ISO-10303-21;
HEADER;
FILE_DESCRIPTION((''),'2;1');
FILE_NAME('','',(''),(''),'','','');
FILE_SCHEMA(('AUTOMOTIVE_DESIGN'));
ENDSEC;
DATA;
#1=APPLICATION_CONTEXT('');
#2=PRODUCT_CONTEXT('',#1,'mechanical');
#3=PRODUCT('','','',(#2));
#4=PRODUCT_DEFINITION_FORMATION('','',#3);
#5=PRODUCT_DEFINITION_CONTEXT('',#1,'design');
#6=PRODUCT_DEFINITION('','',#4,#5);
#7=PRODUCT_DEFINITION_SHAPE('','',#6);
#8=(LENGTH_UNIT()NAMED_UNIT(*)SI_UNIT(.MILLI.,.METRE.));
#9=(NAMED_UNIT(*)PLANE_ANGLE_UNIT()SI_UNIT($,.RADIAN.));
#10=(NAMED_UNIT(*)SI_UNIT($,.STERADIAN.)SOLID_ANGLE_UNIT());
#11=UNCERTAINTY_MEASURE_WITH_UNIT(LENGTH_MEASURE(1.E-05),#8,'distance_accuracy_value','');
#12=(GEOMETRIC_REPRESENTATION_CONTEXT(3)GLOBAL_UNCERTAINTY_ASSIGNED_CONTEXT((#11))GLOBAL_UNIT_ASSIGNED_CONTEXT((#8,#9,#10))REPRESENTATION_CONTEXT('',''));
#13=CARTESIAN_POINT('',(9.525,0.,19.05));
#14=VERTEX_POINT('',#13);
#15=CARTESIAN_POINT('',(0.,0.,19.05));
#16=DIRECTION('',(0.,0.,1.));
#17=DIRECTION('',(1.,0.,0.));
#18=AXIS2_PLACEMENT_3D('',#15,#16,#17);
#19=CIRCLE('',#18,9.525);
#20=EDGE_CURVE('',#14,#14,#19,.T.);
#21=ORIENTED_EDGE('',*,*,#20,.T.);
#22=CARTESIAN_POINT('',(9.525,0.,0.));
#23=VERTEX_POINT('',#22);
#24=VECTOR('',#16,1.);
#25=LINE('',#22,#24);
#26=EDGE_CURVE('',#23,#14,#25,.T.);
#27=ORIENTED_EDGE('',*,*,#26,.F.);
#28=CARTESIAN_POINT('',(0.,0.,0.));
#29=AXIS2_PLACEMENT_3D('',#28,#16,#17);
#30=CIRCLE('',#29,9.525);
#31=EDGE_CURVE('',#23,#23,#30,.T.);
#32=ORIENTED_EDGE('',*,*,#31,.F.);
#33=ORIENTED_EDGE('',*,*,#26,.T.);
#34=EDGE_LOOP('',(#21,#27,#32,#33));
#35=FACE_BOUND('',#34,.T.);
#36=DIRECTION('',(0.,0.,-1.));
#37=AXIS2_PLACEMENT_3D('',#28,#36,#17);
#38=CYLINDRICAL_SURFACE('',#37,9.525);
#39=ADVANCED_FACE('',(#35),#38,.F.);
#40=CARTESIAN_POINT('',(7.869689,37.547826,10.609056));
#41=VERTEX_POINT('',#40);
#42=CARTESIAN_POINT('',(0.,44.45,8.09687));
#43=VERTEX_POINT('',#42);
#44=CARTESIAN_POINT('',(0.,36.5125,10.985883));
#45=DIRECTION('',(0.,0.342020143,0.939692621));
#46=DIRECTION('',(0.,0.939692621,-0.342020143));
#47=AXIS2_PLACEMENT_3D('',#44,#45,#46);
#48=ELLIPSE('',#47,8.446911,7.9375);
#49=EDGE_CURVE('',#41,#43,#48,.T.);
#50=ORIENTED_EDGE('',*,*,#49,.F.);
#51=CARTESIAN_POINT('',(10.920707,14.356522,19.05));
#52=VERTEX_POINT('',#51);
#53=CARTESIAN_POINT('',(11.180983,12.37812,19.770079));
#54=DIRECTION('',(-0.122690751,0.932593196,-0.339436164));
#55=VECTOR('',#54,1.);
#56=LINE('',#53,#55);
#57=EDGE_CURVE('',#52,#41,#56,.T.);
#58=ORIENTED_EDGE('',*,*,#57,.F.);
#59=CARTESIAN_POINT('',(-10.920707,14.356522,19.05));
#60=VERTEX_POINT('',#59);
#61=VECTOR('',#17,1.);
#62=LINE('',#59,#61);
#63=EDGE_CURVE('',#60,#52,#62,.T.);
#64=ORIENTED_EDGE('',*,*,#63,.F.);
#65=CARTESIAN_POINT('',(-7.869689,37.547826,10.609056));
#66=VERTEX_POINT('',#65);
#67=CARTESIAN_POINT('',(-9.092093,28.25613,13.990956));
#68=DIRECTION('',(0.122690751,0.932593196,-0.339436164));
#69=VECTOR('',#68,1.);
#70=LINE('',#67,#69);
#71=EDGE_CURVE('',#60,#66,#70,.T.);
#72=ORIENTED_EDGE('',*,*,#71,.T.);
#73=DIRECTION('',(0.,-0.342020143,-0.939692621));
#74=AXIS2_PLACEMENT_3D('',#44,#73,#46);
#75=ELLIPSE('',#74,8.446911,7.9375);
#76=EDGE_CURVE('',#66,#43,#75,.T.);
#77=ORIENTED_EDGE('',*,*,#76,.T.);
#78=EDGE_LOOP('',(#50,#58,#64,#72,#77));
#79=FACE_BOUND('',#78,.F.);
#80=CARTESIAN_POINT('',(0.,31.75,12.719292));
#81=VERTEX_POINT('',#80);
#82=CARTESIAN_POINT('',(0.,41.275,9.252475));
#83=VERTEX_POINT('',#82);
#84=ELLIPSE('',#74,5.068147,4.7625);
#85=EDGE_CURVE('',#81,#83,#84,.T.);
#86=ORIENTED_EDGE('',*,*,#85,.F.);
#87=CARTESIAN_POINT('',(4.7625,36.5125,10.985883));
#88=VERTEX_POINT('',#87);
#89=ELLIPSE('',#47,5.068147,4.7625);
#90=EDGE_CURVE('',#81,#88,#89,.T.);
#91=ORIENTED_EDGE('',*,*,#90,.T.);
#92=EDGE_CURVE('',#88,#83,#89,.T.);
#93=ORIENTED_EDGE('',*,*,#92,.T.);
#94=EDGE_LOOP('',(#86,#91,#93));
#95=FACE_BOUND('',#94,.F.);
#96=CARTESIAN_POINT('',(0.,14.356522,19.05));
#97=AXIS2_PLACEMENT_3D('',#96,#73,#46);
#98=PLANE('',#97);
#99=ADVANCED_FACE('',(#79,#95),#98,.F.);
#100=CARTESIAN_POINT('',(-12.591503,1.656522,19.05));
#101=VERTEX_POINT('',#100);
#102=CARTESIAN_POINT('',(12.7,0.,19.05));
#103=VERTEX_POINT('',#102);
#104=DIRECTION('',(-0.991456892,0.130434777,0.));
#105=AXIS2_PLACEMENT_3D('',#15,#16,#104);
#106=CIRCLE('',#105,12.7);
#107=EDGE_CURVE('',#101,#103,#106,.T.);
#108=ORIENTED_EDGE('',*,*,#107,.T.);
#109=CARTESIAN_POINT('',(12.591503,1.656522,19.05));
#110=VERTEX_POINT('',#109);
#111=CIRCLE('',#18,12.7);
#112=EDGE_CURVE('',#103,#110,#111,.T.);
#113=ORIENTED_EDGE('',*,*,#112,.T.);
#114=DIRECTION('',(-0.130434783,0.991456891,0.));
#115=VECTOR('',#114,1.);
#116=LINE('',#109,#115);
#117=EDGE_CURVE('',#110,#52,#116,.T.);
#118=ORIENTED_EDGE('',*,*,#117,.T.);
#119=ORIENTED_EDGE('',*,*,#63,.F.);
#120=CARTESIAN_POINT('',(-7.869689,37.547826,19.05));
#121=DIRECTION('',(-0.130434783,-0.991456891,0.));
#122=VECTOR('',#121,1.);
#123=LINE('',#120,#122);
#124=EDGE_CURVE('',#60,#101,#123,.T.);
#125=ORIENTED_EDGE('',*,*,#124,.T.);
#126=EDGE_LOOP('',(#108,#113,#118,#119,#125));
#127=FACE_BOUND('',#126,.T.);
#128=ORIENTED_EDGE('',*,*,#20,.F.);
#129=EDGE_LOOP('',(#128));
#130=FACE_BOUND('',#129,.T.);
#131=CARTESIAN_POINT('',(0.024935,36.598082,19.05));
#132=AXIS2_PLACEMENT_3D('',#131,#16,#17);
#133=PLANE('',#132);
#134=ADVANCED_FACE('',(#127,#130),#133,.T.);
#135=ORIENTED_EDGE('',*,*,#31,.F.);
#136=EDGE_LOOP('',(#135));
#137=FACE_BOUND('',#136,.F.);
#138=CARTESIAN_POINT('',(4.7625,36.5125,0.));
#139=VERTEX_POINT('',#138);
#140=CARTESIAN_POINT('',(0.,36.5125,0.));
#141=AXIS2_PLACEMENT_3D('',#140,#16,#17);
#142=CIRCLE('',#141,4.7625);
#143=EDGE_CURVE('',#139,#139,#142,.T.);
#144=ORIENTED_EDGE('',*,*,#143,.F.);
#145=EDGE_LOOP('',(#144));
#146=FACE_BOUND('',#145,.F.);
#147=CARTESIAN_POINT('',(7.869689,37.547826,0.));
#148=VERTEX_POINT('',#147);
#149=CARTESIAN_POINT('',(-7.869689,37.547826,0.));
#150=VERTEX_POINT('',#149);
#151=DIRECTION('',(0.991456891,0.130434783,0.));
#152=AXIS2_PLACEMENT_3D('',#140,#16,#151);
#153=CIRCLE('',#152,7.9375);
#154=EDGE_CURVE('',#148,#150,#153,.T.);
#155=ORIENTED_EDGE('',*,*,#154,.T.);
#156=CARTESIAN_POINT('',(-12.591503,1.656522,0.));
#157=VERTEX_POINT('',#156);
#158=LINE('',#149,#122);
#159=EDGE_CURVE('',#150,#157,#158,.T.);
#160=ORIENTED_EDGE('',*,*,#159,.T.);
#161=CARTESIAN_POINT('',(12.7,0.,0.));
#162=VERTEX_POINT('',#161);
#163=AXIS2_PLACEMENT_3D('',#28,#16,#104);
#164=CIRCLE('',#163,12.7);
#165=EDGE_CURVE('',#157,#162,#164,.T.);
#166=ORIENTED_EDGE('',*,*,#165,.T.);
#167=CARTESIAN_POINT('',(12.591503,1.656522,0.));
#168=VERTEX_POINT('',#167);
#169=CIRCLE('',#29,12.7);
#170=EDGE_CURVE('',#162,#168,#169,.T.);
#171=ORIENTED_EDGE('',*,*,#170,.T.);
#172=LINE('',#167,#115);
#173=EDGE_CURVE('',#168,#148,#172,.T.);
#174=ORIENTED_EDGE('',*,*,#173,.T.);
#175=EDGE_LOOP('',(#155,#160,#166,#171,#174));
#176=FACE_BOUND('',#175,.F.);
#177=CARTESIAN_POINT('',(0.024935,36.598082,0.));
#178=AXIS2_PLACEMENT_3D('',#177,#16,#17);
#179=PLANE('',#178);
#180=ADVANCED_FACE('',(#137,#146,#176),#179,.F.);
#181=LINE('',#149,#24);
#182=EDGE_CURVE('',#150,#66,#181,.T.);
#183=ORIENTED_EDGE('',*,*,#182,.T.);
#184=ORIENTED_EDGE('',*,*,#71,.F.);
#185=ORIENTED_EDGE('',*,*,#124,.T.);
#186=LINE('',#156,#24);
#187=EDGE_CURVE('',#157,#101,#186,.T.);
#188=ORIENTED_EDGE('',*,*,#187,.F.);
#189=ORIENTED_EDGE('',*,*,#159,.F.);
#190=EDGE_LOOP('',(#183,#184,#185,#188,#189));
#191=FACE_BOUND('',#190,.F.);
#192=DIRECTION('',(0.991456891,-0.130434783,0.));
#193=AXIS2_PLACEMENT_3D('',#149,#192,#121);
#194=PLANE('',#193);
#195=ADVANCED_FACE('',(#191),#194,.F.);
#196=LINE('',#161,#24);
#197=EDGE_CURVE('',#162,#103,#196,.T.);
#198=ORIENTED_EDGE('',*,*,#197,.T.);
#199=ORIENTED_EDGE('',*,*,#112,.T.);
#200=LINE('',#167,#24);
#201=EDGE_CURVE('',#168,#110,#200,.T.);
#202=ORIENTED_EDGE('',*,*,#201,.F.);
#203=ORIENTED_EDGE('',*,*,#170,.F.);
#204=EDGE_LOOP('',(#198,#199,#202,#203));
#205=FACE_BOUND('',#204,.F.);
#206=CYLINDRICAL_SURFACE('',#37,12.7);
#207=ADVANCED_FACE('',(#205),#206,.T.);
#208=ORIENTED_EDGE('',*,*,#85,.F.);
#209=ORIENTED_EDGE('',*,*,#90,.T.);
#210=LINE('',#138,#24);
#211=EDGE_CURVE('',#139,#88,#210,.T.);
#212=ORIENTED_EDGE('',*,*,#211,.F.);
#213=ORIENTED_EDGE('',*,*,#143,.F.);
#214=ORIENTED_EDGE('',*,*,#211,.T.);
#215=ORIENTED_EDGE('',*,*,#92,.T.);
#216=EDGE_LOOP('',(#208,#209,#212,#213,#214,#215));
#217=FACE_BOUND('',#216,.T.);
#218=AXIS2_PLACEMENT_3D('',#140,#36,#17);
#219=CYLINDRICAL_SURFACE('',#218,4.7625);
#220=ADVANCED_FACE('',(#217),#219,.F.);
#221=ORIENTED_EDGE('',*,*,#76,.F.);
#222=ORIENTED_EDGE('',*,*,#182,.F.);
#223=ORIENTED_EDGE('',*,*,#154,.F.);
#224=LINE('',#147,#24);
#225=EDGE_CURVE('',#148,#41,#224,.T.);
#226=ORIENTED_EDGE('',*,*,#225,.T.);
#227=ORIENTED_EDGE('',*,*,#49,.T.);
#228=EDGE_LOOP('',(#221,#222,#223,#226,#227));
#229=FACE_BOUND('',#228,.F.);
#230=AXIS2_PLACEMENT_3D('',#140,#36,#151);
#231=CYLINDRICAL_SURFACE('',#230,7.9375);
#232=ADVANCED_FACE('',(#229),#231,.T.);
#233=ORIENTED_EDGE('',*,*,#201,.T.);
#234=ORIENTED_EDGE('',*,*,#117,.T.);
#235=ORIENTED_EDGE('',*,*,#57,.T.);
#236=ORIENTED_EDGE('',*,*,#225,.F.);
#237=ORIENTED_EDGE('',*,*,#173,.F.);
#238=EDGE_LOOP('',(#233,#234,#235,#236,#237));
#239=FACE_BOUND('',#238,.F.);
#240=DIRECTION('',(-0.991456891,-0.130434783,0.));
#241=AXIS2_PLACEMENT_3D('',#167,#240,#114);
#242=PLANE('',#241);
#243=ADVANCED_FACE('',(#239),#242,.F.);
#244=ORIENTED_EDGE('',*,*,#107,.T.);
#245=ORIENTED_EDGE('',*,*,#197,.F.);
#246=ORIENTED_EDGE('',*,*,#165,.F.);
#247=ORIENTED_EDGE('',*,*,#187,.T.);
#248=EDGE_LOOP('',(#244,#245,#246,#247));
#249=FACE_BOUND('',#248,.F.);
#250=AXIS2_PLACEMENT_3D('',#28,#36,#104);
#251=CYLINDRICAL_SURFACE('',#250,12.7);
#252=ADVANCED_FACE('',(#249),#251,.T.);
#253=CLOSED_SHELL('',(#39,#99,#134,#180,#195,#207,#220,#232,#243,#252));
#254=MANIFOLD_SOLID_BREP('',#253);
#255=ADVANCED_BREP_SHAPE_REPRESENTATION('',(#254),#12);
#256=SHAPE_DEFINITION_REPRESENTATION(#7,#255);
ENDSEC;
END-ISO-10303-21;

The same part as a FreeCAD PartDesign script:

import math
import FreeCAD as App
import Part
import Sketcher
from FreeCAD import Vector
Q = App.Units.Quantity

doc = App.newDocument("Part")
body = doc.addObject("PartDesign::Body", "Body")

# Sketch on XY plane
sketch1 = body.newObject("Sketcher::SketchObject", "Sketch")
sketch1.AttachmentSupport = (doc.getObject("XY_Plane"), [""])
sketch1.MapMode = "FlatFace"
sketch1.addGeometry([
    Part.ArcOfCircle(Part.Circle(Vector(0, 36.5, 0), Vector(0, 0, 1), 7.9), math.radians(7), math.radians(173)),  # 0
    Part.LineSegment(Vector(-7.9, 37.5, 0), Vector(-12.6, 1.7, 0)),  # 1
    Part.ArcOfCircle(Part.Circle(Vector(0, 0, 0), Vector(0, 0, 1), 12.7), math.radians(173), math.radians(360)),  # 2
    Part.ArcOfCircle(Part.Circle(Vector(0, 0, 0), Vector(0, 0, 1), 12.7), math.radians(0), math.radians(7.49)),  # 3
    Part.LineSegment(Vector(12.6, 1.7, 0), Vector(7.9, 37.5, 0)),  # 4
    Part.Circle(Vector(0, 0, 0), Vector(0, 0, 1), 9.5),  # 5
    Part.Circle(Vector(0, 36.5, 0), Vector(0, 0, 1), 4.8),  # 6
], False)
sketch1.addConstraint([
    Sketcher.Constraint("Tangent", 0, 2, 1, 1),
    Sketcher.Constraint("Tangent", 1, 2, 2, 1),
    Sketcher.Constraint("Tangent", 2, 2, 3, 1),
    Sketcher.Constraint("Tangent", 3, 2, 4, 1),
    Sketcher.Constraint("Tangent", 4, 2, 0, 1),
    Sketcher.Constraint("Coincident", 2, 3, -1, 1),
    Sketcher.Constraint("Coincident", 5, 3, -1, 1),
    Sketcher.Constraint("Coincident", 6, 3, 0, 3),
    Sketcher.Constraint("Equal", 2, 3),
    Sketcher.Constraint("PointOnObject", 0, 3, -2),
    Sketcher.Constraint("PointOnObject", 2, 2, -1),
    Sketcher.Constraint("Radius", 2, Q("0.5 in")),
    Sketcher.Constraint("Diameter", 5, Q("0.75 in")),
    Sketcher.Constraint("Diameter", 6, Q("0.375 in")),
    Sketcher.Constraint("Radius", 0, Q("0.3125 in")),
    Sketcher.Constraint("DistanceY", -1, 1, 0, 3, Q("1.4375 in")),
])
pad1 = body.newObject("PartDesign::Pad", "Pad")
pad1.Profile = sketch1
pad1.Length = Q("0.75 in")

# Sketch on YZ plane
sketch2 = body.newObject("Sketcher::SketchObject", "Sketch001")
sketch2.AttachmentSupport = (doc.getObject("YZ_Plane"), [""])
sketch2.MapMode = "FlatFace"
sketch2.addGeometry([
    Part.LineSegment(Vector(47, 19, 0), Vector(14, 19, 0)),
    Part.LineSegment(Vector(14, 19, 0), Vector(47, 7, 0)),
    Part.LineSegment(Vector(47, 7, 0), Vector(47, 19, 0)),
], False)
sketch2.addConstraint([
    Sketcher.Constraint("Coincident", 0, 2, 1, 1),
    Sketcher.Constraint("Coincident", 1, 2, 2, 1),
    Sketcher.Constraint("Coincident", 2, 2, 0, 1),
    Sketcher.Constraint("Horizontal", 0),
    Sketcher.Constraint("Vertical", 2),
    Sketcher.Constraint("Angle", 1, Q("-20 deg")),
    Sketcher.Constraint("DistanceY", -1, 1, 0, 2, Q("0.75 in")),
    Sketcher.Constraint("DistanceX", 0, 2, 0, 1, Q("32.479719 mm")),
    Sketcher.Constraint("DistanceX", -1, 1, 0, 2, Q("14.356522 mm")),
])
pocket1 = body.newObject("PartDesign::Pocket", "Pocket")
pocket1.Profile = sketch2
pocket1.Type = "ThroughAll"
pocket1.Midplane = True

doc.recompute()
